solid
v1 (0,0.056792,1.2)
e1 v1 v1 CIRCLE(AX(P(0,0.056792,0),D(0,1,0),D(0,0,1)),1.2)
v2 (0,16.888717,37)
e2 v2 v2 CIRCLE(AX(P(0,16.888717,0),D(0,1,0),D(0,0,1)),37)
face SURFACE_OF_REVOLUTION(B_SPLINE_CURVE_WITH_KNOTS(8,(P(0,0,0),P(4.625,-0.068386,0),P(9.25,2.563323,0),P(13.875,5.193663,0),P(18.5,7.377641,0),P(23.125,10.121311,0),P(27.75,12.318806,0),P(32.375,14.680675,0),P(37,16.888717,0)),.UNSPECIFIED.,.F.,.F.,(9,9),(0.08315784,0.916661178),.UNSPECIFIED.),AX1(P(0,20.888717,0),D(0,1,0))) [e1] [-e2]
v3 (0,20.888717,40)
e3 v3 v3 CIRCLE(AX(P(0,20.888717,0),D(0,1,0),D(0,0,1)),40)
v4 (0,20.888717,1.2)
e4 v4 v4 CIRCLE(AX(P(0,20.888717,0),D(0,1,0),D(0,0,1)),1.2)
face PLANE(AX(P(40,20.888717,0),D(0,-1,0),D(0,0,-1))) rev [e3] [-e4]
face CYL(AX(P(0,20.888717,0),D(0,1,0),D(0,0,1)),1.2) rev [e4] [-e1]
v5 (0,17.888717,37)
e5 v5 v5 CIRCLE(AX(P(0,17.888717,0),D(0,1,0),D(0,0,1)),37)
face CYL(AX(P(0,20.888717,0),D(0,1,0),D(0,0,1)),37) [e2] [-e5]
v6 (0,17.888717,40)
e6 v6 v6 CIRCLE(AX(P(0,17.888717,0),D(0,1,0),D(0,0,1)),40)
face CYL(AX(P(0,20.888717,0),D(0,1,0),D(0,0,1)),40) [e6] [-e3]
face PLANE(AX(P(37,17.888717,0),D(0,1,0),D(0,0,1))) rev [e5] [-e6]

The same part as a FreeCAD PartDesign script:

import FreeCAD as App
import Part
import Sketcher
Q = App.Units.Quantity

doc = App.newDocument("Part")
body = doc.addObject("PartDesign::Body", "Body")

# Sketch on XY plane
sketch1 = doc.addObject("Sketcher::SketchObject", "Sketch")
body.addObject(sketch1)
sketch1.AttachmentSupport = (doc.XY_Plane, [""])
sketch1.MapMode = "FlatFace"
sketch1.addGeometry([
    Part.LineSegment(App.Vector(1.2, 20.888717, 0), App.Vector(1.2, 15.888717, 0)),  # 0
    Part.LineSegment(App.Vector(1.2, 15.888717, 0), App.Vector(0, 15.888717, 0)),  # 1
    Part.LineSegment(App.Vector(0, 15.888717, 0), App.Vector(0, 0, 0)),  # 2
    Part.BSplineCurve([App.Vector(0, 0, 0), App.Vector(4.625, -0.068386, 0), App.Vector(9.25, 2.563323, 0), App.Vector(13.875, 5.193663, 0), App.Vector(18.5, 7.377641, 0), App.Vector(23.125, 10.121311, 0), App.Vector(27.75, 12.318806, 0), App.Vector(32.375, 14.680675, 0), App.Vector(37, 16.888717, 0)], [9, 9], [0.08315784, 0.916661178], False, 8, [1, 1, 1, 1, 1, 1, 1, 1, 1], False),  # 3
    Part.LineSegment(App.Vector(37, 16.888717, 0), App.Vector(37, 17.888717, 0)),  # 4
    Part.LineSegment(App.Vector(37, 17.888717, 0), App.Vector(40, 17.888717, 0)),  # 5
    Part.LineSegment(App.Vector(40, 17.888717, 0), App.Vector(40, 20.888717, 0)),  # 6
    Part.LineSegment(App.Vector(40, 20.888717, 0), App.Vector(1.2, 20.888717, 0)),  # 7
], False)
sketch1.addConstraint([
    Sketcher.Constraint("Block", 3),
    Sketcher.Constraint("Coincident", 0, 2, 1, 1),
    Sketcher.Constraint("Coincident", 1, 2, 2, 1),
    Sketcher.Constraint("Coincident", 2, 2, 3, 1),
    Sketcher.Constraint("Coincident", 3, 2, 4, 1),
    Sketcher.Constraint("Coincident", 4, 2, 5, 1),
    Sketcher.Constraint("Coincident", 5, 2, 6, 1),
    Sketcher.Constraint("Coincident", 6, 2, 7, 1),
    Sketcher.Constraint("Coincident", 7, 2, 0, 1),
    Sketcher.Constraint("Vertical", 0),
    Sketcher.Constraint("Horizontal", 1),
    Sketcher.Constraint("Vertical", 2),
    Sketcher.Constraint("Vertical", 4),
    Sketcher.Constraint("Horizontal", 5),
    Sketcher.Constraint("Vertical", 6),
    Sketcher.Constraint("Horizontal", 7),
    Sketcher.Constraint("Equal", 5, 6),
    Sketcher.Constraint("DistanceX", 5, 1, 5, 2, Q("3 mm")),
    Sketcher.Constraint("DistanceY", 0, 2, 0, 1, Q("5 mm")),
    Sketcher.Constraint("DistanceY", 4, 1, 4, 2, Q("1 mm")),
    Sketcher.Constraint("DistanceX", 1, 2, 1, 1, Q("1.2 mm")),
])
revolution = doc.addObject("PartDesign::Revolution", "Revolution")
body.addObject(revolution)
revolution.Profile = sketch1
revolution.ReferenceAxis = (sketch1, ["V_Axis"])
revolution.Angle = 360

# Sketch on XZ plane
sketch2 = doc.addObject("Sketcher::SketchObject", "Sketch001")
body.addObject(sketch2)
sketch2.AttachmentSupport = (doc.XZ_Plane, [""])
sketch2.MapMode = "FlatFace"
sketch2.AttachmentOffset = App.Placement(App.Vector(0, 0, -20.888717), App.Rotation())
sketch2.addGeometry(Part.Circle(App.Vector(0, 0, 0), App.Vector(0, 0, 1), 1.2), False)
sketch2.addConstraint([
    Sketcher.Constraint("Coincident", 0, 3, -1, 1),
    Sketcher.Constraint("Diameter", 0, Q("2.4 mm")),
])
pocket1 = doc.addObject("PartDesign::Pocket", "Pocket")
body.addObject(pocket1)
pocket1.Profile = sketch2
pocket1.Type = "ThroughAll"
pocket1.Reversed = True

doc.recompute()
